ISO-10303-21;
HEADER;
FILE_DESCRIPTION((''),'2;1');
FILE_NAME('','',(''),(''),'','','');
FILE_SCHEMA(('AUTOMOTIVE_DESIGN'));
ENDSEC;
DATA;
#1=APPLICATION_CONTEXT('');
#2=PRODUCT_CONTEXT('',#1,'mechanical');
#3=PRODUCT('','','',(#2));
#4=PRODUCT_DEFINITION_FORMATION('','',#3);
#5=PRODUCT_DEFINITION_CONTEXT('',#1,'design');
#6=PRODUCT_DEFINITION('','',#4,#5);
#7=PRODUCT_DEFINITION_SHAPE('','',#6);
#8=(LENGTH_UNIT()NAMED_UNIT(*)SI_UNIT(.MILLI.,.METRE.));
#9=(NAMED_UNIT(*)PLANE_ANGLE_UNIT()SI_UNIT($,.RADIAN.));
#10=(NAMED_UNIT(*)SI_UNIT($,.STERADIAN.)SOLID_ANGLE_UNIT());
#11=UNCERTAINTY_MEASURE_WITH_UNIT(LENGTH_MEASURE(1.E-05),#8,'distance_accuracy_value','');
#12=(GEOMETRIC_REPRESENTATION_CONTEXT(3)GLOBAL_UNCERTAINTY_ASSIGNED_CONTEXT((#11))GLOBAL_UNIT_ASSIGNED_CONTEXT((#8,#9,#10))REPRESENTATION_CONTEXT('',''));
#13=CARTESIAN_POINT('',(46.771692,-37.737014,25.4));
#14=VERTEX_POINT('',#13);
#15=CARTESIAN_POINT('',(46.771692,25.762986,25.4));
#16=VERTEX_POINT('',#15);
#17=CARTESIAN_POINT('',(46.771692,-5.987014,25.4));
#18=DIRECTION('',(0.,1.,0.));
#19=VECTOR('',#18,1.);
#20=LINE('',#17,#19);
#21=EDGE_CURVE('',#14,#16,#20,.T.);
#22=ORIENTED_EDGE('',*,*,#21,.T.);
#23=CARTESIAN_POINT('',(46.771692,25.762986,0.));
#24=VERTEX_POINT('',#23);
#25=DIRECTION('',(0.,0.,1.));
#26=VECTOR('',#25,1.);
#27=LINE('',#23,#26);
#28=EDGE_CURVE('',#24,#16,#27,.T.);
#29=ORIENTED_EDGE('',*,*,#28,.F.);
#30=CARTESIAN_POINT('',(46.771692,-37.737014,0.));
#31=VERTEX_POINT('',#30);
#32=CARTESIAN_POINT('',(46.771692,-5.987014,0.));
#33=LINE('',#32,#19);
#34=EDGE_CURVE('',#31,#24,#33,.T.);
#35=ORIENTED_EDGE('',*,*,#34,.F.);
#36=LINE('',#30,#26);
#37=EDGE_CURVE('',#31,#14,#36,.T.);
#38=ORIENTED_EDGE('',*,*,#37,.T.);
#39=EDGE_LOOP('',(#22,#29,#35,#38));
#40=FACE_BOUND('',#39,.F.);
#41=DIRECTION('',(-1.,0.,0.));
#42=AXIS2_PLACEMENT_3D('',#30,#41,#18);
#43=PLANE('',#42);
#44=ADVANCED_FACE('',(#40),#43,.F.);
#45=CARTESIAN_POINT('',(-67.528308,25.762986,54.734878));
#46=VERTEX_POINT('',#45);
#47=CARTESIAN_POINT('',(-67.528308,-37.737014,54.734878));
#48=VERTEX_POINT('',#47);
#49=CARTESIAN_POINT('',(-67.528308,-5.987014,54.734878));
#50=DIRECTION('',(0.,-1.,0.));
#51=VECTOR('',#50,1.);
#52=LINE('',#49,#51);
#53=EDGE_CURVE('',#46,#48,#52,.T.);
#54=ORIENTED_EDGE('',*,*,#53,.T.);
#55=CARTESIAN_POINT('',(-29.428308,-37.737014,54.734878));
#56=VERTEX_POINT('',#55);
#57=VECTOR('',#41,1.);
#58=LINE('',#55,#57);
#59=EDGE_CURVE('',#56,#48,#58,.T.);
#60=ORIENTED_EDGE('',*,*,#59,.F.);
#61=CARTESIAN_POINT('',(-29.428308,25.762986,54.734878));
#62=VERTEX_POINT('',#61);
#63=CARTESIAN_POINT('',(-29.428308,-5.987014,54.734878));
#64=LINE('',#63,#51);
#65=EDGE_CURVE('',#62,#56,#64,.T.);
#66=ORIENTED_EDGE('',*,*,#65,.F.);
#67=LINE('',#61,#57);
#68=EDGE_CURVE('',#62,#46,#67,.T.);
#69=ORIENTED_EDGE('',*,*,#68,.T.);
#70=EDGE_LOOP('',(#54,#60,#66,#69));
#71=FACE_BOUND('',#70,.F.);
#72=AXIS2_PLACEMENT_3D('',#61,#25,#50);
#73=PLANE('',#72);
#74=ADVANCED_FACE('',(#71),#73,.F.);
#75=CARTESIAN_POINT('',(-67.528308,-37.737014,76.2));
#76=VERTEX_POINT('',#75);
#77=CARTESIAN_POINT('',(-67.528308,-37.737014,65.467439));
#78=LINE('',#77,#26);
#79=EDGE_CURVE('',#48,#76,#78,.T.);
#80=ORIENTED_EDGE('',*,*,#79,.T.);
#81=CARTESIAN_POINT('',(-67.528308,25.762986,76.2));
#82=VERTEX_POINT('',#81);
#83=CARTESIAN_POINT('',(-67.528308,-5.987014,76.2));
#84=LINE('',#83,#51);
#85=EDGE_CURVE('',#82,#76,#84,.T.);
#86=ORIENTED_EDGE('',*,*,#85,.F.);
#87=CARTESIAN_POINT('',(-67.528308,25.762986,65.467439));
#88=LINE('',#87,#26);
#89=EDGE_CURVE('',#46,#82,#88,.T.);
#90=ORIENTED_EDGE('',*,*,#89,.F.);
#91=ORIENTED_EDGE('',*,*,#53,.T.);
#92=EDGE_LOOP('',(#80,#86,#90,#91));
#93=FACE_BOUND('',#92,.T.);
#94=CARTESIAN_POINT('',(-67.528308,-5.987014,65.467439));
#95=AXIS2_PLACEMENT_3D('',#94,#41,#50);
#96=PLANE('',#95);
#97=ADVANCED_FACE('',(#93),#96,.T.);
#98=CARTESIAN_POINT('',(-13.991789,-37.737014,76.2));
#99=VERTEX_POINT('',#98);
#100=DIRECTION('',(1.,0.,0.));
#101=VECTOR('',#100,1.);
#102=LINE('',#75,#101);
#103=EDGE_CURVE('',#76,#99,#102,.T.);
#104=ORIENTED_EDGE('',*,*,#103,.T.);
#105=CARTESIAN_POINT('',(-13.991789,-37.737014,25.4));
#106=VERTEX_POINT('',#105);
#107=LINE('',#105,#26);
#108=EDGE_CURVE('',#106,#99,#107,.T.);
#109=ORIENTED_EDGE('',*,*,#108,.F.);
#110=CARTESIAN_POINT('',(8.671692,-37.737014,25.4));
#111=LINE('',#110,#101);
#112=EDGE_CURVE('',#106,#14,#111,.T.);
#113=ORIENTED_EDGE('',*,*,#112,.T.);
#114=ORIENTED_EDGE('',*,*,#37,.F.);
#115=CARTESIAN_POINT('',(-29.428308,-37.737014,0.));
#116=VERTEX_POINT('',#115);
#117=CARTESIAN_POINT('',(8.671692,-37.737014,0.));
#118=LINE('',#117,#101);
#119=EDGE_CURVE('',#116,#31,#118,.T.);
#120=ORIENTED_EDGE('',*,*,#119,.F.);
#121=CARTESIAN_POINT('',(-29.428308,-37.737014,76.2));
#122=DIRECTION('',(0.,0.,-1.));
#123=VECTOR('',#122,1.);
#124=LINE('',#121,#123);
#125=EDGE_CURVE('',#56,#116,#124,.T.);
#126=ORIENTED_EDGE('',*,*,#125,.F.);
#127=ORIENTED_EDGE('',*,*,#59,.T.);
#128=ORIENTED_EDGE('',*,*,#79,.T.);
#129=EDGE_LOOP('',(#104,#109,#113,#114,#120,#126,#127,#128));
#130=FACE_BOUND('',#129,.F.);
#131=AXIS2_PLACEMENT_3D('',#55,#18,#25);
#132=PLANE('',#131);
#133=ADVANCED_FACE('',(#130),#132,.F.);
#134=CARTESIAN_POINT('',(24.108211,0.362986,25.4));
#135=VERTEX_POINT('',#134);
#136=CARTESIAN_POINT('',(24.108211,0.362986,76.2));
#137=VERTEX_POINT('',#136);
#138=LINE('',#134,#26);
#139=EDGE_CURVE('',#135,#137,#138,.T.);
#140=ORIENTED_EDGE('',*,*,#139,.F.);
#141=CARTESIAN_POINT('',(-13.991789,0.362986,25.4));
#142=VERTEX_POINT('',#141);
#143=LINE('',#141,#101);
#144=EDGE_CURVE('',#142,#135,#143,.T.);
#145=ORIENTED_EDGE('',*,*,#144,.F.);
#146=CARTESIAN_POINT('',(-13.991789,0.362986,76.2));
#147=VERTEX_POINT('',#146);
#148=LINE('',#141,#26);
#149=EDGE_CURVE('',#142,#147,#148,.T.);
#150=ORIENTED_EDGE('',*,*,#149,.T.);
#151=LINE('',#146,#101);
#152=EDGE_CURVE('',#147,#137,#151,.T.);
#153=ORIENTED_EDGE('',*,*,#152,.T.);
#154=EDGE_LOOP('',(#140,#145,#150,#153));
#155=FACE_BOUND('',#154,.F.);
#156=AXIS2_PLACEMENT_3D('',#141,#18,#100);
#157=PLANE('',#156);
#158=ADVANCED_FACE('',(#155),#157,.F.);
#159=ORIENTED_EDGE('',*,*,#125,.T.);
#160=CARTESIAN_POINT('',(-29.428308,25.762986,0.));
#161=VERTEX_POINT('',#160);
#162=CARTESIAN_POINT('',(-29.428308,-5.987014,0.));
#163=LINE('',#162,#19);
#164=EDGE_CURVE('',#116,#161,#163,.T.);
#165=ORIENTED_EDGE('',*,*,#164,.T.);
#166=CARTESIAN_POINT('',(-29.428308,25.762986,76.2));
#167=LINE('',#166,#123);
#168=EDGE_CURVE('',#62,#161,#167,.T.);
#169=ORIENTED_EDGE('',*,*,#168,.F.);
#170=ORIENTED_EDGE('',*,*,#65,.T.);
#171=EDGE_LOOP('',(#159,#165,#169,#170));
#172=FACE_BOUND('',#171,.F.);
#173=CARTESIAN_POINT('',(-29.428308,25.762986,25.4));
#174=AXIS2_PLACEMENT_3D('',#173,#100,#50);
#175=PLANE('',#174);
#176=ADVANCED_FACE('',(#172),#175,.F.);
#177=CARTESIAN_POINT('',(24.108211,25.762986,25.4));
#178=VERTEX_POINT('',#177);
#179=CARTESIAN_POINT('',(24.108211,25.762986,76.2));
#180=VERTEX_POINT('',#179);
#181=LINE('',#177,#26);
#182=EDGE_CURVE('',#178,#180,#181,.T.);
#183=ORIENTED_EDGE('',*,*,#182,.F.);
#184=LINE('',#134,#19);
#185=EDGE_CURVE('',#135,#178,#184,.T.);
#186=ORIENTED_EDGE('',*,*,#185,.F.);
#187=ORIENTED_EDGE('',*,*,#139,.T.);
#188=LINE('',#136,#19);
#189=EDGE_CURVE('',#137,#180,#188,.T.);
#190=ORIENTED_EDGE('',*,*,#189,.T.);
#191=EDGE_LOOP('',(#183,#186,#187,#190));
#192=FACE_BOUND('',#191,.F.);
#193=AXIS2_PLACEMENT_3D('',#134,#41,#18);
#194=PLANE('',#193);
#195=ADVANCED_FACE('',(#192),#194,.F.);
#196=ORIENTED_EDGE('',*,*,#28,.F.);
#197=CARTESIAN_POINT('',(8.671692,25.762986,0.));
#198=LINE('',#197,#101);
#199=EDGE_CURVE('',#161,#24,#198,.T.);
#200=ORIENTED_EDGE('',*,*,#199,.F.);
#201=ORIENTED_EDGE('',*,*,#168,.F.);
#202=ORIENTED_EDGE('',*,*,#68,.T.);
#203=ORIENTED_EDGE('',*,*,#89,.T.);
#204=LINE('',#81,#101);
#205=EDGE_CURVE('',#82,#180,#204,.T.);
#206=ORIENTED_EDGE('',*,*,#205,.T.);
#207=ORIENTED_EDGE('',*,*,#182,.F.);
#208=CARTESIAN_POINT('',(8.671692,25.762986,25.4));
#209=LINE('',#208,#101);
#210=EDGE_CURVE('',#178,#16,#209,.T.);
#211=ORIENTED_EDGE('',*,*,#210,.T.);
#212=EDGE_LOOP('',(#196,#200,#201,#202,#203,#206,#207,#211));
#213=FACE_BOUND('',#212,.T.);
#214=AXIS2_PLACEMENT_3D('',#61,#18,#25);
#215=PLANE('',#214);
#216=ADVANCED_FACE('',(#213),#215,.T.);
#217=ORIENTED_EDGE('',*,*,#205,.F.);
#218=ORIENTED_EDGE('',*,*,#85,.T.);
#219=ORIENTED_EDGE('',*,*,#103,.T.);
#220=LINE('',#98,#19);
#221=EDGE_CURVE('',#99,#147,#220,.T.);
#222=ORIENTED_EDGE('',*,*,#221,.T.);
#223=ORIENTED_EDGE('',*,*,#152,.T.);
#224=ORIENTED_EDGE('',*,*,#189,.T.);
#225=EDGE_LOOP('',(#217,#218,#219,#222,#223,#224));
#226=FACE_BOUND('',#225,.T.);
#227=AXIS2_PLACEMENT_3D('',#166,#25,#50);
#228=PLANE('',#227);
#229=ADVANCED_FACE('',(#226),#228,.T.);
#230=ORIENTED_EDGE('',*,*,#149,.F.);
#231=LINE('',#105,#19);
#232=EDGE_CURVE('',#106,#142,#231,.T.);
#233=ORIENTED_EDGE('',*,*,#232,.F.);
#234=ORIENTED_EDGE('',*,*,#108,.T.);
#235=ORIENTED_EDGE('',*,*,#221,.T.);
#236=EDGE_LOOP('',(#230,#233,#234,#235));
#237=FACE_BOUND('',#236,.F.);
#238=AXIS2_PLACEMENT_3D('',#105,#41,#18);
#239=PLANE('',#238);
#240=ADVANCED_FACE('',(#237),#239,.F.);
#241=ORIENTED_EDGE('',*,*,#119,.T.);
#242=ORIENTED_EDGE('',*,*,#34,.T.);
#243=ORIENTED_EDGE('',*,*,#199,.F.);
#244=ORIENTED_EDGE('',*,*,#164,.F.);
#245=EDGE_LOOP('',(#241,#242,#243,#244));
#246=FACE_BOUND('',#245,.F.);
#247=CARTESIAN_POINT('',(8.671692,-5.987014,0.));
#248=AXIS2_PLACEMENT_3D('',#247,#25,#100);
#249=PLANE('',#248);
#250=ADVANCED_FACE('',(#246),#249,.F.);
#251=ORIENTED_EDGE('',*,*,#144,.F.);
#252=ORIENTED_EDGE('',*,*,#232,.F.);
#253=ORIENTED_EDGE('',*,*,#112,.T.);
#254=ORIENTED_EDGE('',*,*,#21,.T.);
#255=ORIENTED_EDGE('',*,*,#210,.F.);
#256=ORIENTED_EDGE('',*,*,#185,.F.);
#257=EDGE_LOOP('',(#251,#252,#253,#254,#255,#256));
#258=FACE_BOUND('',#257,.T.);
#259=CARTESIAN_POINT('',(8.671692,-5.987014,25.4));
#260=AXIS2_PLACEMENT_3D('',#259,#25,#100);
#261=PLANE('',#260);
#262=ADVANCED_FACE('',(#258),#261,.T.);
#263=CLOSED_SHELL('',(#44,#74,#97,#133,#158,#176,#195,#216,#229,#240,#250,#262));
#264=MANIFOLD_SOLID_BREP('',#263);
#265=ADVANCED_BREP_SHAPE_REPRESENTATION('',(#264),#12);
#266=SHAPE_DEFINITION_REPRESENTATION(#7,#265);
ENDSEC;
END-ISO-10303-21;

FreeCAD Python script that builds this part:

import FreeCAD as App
import Part
import Sketcher

V = App.Vector
Q = App.Units.Quantity


def add_polygon(sketch, points):
    """Adds a closed chain of lines whose ends are joined by coincident constraints."""
    first, n = sketch.GeometryCount, len(points)
    for a, b in zip(points, points[1:] + points[:1]):
        sketch.addGeometry(Part.LineSegment(App.Vector(*a, 0), App.Vector(*b, 0)), False)
    for i in range(n):
        sketch.addConstraint(Sketcher.Constraint("Coincident", first + i, 2, first + (i + 1) % n, 1))

doc = App.newDocument("Part")
params = doc.addObject("Spreadsheet::Sheet", "Params")
for row, (alias, value) in enumerate([
    ("sketch1_width", "3 in"),
    ("sketch1_height", "2.5 in"),
    ("pad1_length", "1 in"),
    ("sketch2_height", "1 in"),
    ("sketch2_width", "1.5 in"),
    ("pad2_length", "2 in"),
    ("sketch3_width", "2.5 in"),
    ("pad3_length", "1.5 in"),
], start=1):
    params.set(f"A{row}", alias)
    params.set(f"B{row}", "=" + value)
    params.setAlias(f"B{row}", alias)

body = doc.addObject("PartDesign::Body", "Body")

# Sketch on XY plane
sketch1 = body.newObject("Sketcher::SketchObject", "Sketch")
sketch1.AttachmentSupport = (doc.getObject("XY_Plane"), [""])
sketch1.MapMode = "FlatFace"
add_polygon(sketch1, [(-29.428308, 25.762986), (-29.428308, -37.737014), (46.771692, -37.737014), (46.771692, 25.762986)])  # lines 0-3
sketch1.addConstraint([
    Sketcher.Constraint("Vertical", 0),
    Sketcher.Constraint("Horizontal", 1),
    Sketcher.Constraint("Vertical", 2),
    Sketcher.Constraint("Horizontal", 3),
    Sketcher.Constraint("DistanceX", 1, 1, 1, 2, Q("3 in")),
    Sketcher.Constraint("DistanceY", 0, 2, 0, 1, Q("2.5 in")),
    Sketcher.Constraint("DistanceX", 0, 2, -1, 1, Q("29.428308 mm")),
    Sketcher.Constraint("DistanceY", 0, 2, -1, 1, Q("37.737014 mm")),
])
sketch1.setExpression("Constraints[8]", "Params.sketch1_width")
sketch1.setExpression("Constraints[9]", "Params.sketch1_height")
pad1 = body.newObject("PartDesign::Pad", "Pad")
pad1.Profile = sketch1
pad1.setExpression("Length", "Params.pad1_length")

# Sketch on XY plane
sketch2 = body.newObject("Sketcher::SketchObject", "Sketch001")
sketch2.AttachmentSupport = (doc.getObject("XY_Plane"), [""])
sketch2.MapMode = "FlatFace"
sketch2.AttachmentOffset = App.Placement(V(0, 0, 1 * 25.4), App.Rotation())
add_polygon(sketch2, [(-29.428308, -37.737014), (-13.991789, -37.737014), (-13.991789, 0.362986), (24.108211, 0.362986), (24.108211, 25.762986), (-29.428308, 25.762986)])  # lines 0-5
sketch2.addConstraint([
    Sketcher.Constraint("Horizontal", 0),
    Sketcher.Constraint("Vertical", 1),
    Sketcher.Constraint("Horizontal", 2),
    Sketcher.Constraint("Vertical", 3),
    Sketcher.Constraint("Horizontal", 4),
    Sketcher.Constraint("Vertical", 5),
    Sketcher.Constraint("Equal", 2, 1),
    Sketcher.Constraint("DistanceY", 3, 1, 3, 2, Q("1 in")),
    Sketcher.Constraint("DistanceX", 2, 1, 2, 2, Q("1.5 in")),
    Sketcher.Constraint("DistanceX", 0, 1, 0, 2, Q("15.436519 mm")),
    Sketcher.Constraint("DistanceX", 0, 2, -1, 1, Q("13.991789 mm")),
    Sketcher.Constraint("DistanceY", 0, 2, -1, 1, Q("37.737014 mm")),
])
sketch2.setExpression("Constraints[13]", "Params.sketch2_height")
sketch2.setExpression("Constraints[14]", "Params.sketch2_width")
pad2 = body.newObject("PartDesign::Pad", "Pad001")
pad2.Profile = sketch2
pad2.setExpression("Length", "Params.pad2_length")

# Sketch on YZ plane
sketch3 = body.newObject("Sketcher::SketchObject", "Sketch002")
sketch3.AttachmentSupport = (doc.getObject("YZ_Plane"), [""])
sketch3.MapMode = "FlatFace"
sketch3.AttachmentOffset = App.Placement(V(0, 0, -29.428308), App.Rotation())
add_polygon(sketch3, [(25.762986, 76.2), (25.762986, 54.734878), (-37.737014, 54.734878), (-37.737014, 76.2)])  # lines 0-3
sketch3.addConstraint([
    Sketcher.Constraint("Vertical", 0),
    Sketcher.Constraint("Horizontal", 1),
    Sketcher.Constraint("Vertical", 2),
    Sketcher.Constraint("Horizontal", 3),
    Sketcher.Constraint("DistanceX", 1, 2, 1, 1, Q("2.5 in")),
    Sketcher.Constraint("DistanceY", -1, 1, 2, 2, Q("3 in")),
    Sketcher.Constraint("DistanceY", 0, 2, 0, 1, Q("21.465122 mm")),
    Sketcher.Constraint("DistanceX", -1, 1, 0, 2, Q("25.762986 mm")),
])
sketch3.setExpression("Constraints[8]", "Params.sketch3_width")
pad3 = body.newObject("PartDesign::Pad", "Pad002")
pad3.Profile = sketch3
pad3.setExpression("Length", "Params.pad3_length")
pad3.Reversed = True

doc.recompute()
